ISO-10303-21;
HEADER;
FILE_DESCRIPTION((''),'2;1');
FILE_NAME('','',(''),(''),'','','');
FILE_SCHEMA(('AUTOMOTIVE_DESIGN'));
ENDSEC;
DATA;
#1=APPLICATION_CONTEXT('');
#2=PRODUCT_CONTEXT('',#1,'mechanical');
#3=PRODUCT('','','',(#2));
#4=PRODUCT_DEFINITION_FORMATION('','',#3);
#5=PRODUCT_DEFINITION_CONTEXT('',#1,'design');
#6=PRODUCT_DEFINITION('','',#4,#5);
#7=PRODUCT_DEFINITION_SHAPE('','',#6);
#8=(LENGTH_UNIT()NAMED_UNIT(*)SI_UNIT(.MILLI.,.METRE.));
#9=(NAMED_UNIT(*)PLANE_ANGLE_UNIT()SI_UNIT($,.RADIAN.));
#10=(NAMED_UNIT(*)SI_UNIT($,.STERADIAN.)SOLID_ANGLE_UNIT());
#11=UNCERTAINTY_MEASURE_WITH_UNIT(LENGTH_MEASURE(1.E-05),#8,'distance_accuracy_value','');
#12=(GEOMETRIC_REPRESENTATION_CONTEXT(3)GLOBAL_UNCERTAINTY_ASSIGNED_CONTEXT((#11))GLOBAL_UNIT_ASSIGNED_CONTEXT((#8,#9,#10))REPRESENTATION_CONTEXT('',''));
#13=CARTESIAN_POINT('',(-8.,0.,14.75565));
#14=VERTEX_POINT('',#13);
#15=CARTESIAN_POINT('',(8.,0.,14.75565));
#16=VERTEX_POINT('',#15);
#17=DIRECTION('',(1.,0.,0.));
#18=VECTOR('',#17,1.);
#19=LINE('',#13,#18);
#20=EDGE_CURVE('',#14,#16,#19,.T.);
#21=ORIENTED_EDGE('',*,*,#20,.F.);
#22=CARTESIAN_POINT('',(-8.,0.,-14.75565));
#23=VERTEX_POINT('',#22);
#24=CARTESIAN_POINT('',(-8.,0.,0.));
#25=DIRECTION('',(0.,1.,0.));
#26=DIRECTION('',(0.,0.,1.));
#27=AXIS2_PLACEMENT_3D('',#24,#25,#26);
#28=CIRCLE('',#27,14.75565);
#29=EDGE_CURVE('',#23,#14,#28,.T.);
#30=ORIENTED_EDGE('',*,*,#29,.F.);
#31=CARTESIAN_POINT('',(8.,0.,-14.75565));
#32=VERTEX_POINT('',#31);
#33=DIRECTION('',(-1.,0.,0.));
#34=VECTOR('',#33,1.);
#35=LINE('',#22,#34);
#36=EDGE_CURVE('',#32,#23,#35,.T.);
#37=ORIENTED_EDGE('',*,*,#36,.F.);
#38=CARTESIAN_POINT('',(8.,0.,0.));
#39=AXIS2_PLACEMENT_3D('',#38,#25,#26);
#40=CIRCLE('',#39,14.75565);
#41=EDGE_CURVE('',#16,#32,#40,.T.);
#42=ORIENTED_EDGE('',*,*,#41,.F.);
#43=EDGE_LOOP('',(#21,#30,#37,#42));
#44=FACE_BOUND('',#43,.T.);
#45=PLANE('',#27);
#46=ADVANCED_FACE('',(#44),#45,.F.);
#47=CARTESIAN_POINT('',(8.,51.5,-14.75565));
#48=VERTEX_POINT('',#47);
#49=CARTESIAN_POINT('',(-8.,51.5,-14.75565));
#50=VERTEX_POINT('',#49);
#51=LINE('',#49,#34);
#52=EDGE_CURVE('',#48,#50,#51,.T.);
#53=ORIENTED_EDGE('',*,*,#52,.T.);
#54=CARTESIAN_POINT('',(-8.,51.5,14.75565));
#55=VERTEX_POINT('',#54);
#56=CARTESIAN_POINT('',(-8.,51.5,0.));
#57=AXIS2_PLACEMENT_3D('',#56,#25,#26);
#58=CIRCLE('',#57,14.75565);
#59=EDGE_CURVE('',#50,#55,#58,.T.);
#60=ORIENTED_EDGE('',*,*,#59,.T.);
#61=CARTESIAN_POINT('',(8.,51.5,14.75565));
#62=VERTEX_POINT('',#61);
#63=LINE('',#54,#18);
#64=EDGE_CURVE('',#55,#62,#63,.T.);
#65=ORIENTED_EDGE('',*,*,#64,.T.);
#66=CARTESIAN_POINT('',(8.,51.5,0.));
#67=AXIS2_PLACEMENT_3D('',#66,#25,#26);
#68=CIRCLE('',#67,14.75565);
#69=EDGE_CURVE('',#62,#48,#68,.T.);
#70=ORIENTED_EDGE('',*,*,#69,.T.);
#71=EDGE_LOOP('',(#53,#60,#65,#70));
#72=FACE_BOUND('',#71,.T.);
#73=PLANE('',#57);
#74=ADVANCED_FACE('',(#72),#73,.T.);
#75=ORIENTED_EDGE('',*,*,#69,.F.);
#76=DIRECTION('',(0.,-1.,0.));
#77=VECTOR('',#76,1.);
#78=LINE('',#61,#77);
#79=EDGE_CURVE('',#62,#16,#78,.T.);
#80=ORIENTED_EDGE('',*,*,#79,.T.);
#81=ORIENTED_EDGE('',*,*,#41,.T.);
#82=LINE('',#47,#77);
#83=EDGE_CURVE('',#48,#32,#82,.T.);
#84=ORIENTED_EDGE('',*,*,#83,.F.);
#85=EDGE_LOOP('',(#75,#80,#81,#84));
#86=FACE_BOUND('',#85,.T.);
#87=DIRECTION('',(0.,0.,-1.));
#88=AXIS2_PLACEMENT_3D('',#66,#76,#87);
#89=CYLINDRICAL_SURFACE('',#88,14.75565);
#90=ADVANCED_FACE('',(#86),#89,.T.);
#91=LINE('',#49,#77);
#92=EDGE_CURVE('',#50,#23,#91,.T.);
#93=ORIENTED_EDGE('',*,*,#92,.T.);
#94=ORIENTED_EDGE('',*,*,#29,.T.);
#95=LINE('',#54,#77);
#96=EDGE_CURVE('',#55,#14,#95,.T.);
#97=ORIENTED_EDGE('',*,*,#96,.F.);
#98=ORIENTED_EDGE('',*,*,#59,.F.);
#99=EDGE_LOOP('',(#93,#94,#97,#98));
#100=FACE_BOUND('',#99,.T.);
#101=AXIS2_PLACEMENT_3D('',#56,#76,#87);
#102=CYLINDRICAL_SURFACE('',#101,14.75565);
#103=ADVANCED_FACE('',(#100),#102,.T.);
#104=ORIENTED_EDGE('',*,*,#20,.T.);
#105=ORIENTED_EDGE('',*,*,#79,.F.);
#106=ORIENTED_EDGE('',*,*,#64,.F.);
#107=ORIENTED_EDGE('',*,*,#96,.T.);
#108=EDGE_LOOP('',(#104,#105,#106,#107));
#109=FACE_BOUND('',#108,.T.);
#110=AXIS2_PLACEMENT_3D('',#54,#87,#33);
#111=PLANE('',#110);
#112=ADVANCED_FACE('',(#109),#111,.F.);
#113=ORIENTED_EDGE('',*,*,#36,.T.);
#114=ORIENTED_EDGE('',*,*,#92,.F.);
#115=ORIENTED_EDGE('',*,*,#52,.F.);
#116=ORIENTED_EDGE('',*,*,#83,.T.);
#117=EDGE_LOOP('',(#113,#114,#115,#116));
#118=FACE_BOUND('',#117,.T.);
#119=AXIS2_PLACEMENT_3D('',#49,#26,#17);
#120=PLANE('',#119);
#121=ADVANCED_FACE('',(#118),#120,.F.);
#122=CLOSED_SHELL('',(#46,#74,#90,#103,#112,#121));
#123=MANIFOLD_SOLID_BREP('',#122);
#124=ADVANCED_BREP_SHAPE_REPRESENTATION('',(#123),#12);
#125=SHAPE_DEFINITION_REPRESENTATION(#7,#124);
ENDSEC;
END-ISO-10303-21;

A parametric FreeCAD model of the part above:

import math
import FreeCAD as App
import Part
import Sketcher
from FreeCAD import Vector

doc = App.newDocument("Part")
body = doc.addObject("PartDesign::Body", "Body")

sketch1 = body.newObject("Sketcher::SketchObject", "Sketch")
sketch1.AttachmentSupport = (doc.getObject("XZ_Plane"), [""])
sketch1.MapMode = "FlatFace"
sketch1.addGeometry(Part.LineSegment(Vector(8, -15, 0), Vector(-8, -15, 0)), False)
sketch1.addGeometry(Part.ArcOfCircle(Part.Circle(Vector(-8, 0, 0), Vector(0, 0, 1), 15), math.radians(90), math.radians(270)), False)
sketch1.addGeometry(Part.LineSegment(Vector(-8, 15, 0), Vector(8, 15, 0)), False)
sketch1.addGeometry(Part.ArcOfCircle(Part.Circle(Vector(8, 0, 0), Vector(0, 0, 1), 15), math.radians(-90), math.radians(90)), False)
sketch1.addConstraint(Sketcher.Constraint("Tangent", 0, 2, 1, 2))
sketch1.addConstraint(Sketcher.Constraint("Tangent", 1, 1, 2, 1))
sketch1.addConstraint(Sketcher.Constraint("Tangent", 2, 2, 3, 2))
sketch1.addConstraint(Sketcher.Constraint("Tangent", 3, 1, 0, 1))
sketch1.addConstraint(Sketcher.Constraint("Horizontal", 0))
sketch1.addConstraint(Sketcher.Constraint("Horizontal", 2))
sketch1.addConstraint(Sketcher.Constraint("Symmetric", 1, 3, 3, 3, -1, 1))
sketch1.addConstraint(Sketcher.Constraint("DistanceX", 0, 2, 0, 1, 16.0))
sketch1.addConstraint(Sketcher.Constraint("Radius", 1, 14.75565))
pad1 = body.newObject("PartDesign::Pad", "Pad")
pad1.Profile = sketch1
pad1.Length = 51.5
pad1.Reversed = True

doc.recompute()
